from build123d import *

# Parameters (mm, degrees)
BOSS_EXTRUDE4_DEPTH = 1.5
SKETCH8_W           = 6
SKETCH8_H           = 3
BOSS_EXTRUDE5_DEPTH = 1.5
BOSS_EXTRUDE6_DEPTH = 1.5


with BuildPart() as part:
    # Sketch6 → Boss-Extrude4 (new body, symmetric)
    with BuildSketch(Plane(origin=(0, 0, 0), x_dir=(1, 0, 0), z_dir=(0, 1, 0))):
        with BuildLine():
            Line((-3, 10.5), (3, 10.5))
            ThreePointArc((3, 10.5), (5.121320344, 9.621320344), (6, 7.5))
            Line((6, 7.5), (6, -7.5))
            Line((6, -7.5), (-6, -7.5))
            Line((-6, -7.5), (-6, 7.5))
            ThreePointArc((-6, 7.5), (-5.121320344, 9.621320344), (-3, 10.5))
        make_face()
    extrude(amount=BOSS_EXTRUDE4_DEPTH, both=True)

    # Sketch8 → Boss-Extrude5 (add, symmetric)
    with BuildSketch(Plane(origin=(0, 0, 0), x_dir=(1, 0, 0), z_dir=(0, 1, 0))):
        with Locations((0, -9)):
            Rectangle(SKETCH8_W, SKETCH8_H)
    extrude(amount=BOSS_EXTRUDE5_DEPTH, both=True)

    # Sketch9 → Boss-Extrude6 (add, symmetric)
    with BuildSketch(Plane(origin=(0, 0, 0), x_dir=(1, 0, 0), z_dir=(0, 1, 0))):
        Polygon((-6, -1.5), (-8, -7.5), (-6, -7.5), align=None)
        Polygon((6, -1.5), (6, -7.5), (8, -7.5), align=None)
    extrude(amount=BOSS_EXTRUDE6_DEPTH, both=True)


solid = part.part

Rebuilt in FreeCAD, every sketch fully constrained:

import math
import FreeCAD as App
import Part
import Sketcher
from FreeCAD import Vector

doc = App.newDocument("Part")
body = doc.addObject("PartDesign::Body", "Body")

sketch1 = body.newObject("Sketcher::SketchObject", "Sketch")
sketch1.AttachmentSupport = (doc.getObject("XZ_Plane"), [""])
sketch1.MapMode = "FlatFace"
sketch1.addGeometry([
    Part.LineSegment(Vector(3, -10.5, 0), Vector(-3, -10.5, 0)),
    Part.ArcOfCircle(Part.Circle(Vector(-3, -7.5, 0), Vector(0, 0, 1), 3), math.radians(180), math.radians(270)),
    Part.LineSegment(Vector(-6, -7.5, 0), Vector(-6, 7.5, 0)),
    Part.LineSegment(Vector(-6, 7.5, 0), Vector(6, 7.5, 0)),
    Part.LineSegment(Vector(6, 7.5, 0), Vector(6, -7.5, 0)),
    Part.ArcOfCircle(Part.Circle(Vector(3, -7.5, 0), Vector(0, 0, 1), 3), math.radians(-90), math.radians(0)),
], False)
sketch1.addConstraint([
    Sketcher.Constraint("Tangent", 0, 2, 1, 2),
    Sketcher.Constraint("Tangent", 1, 1, 2, 1),
    Sketcher.Constraint("Coincident", 2, 2, 3, 1),
    Sketcher.Constraint("Coincident", 3, 2, 4, 1),
    Sketcher.Constraint("Tangent", 4, 2, 5, 2),
    Sketcher.Constraint("Tangent", 5, 1, 0, 1),
    Sketcher.Constraint("Horizontal", 0),
    Sketcher.Constraint("Vertical", 2),
    Sketcher.Constraint("Horizontal", 3),
    Sketcher.Constraint("Vertical", 4),
    Sketcher.Constraint("Equal", 1, 5),
    Sketcher.Constraint("Symmetric", 1, 1, 3, 2, -1, 1),
    Sketcher.Constraint("Radius", 1, 3.0),
    Sketcher.Constraint("DistanceX", 0, 2, 0, 1, 6.0),
    Sketcher.Constraint("DistanceY", 2, 1, 2, 2, 15.0),
])
pad1 = body.newObject("PartDesign::Pad", "Pad")
pad1.Profile = sketch1
pad1.Length = 3
pad1.Midplane = True

sketch2 = body.newObject("Sketcher::SketchObject", "Sketch001")
sketch2.AttachmentSupport = (doc.getObject("XZ_Plane"), [""])
sketch2.MapMode = "FlatFace"
sketch2.addGeometry([
    Part.LineSegment(Vector(-3, 7.5, 0), Vector(-3, 10.5, 0)),
    Part.LineSegment(Vector(-3, 10.5, 0), Vector(3, 10.5, 0)),
    Part.LineSegment(Vector(3, 10.5, 0), Vector(3, 7.5, 0)),
    Part.LineSegment(Vector(3, 7.5, 0), Vector(-3, 7.5, 0)),
], False)
sketch2.addConstraint([
    Sketcher.Constraint("Coincident", 0, 2, 1, 1),
    Sketcher.Constraint("Coincident", 1, 2, 2, 1),
    Sketcher.Constraint("Coincident", 2, 2, 3, 1),
    Sketcher.Constraint("Coincident", 3, 2, 0, 1),
    Sketcher.Constraint("Vertical", 0),
    Sketcher.Constraint("Horizontal", 1),
    Sketcher.Constraint("Vertical", 2),
    Sketcher.Constraint("Horizontal", 3),
    Sketcher.Constraint("DistanceX", 1, 1, 1, 2, 6.0),
    Sketcher.Constraint("DistanceY", 0, 1, 0, 2, 3.0),
    Sketcher.Constraint("DistanceX", 0, 2, -1, 1, 3.0),
    Sketcher.Constraint("DistanceY", -1, 1, 0, 2, 10.5),
])
pad2 = body.newObject("PartDesign::Pad", "Pad001")
pad2.Profile = sketch2
pad2.Length = 3
pad2.Midplane = True

sketch3 = body.newObject("Sketcher::SketchObject", "Sketch002")
sketch3.AttachmentSupport = (doc.getObject("XZ_Plane"), [""])
sketch3.MapMode = "FlatFace"
sketch3.addGeometry([
    Part.LineSegment(Vector(-6, 1.5, 0), Vector(-8, 7.5, 0)),
    Part.LineSegment(Vector(-8, 7.5, 0), Vector(-6, 7.5, 0)),
    Part.LineSegment(Vector(-6, 7.5, 0), Vector(-6, 1.5, 0)),
    Part.LineSegment(Vector(6, 1.5, 0), Vector(6, 7.5, 0)),
    Part.LineSegment(Vector(6, 7.5, 0), Vector(8, 7.5, 0)),
    Part.LineSegment(Vector(8, 7.5, 0), Vector(6, 1.5, 0)),
], False)
sketch3.addConstraint([
    Sketcher.Constraint("Coincident", 0, 2, 1, 1),
    Sketcher.Constraint("Coincident", 1, 2, 2, 1),
    Sketcher.Constraint("Coincident", 2, 2, 0, 1),
    Sketcher.Constraint("Coincident", 3, 2, 4, 1),
    Sketcher.Constraint("Coincident", 4, 2, 5, 1),
    Sketcher.Constraint("Coincident", 5, 2, 3, 1),
    Sketcher.Constraint("Horizontal", 1),
    Sketcher.Constraint("Vertical", 2),
    Sketcher.Constraint("Vertical", 3),
    Sketcher.Constraint("Horizontal", 4),
    Sketcher.Constraint("Symmetric", 1, 2, 3, 2, -2),
    Sketcher.Constraint("Horizontal", 2, 2, 5, 2),
    Sketcher.Constraint("Equal", 1, 4),
    Sketcher.Constraint("DistanceX", 1, 1, 1, 2, 2.0),
    Sketcher.Constraint("DistanceY", 2, 2, 2, 1, 6.0),
    Sketcher.Constraint("DistanceX", 0, 2, -1, 1, 8.0),
    Sketcher.Constraint("DistanceY", -1, 1, 0, 2, 7.5),
])
pad3 = body.newObject("PartDesign::Pad", "Pad002")
pad3.Profile = sketch3
pad3.Length = 3
pad3.Midplane = True

doc.recompute()
